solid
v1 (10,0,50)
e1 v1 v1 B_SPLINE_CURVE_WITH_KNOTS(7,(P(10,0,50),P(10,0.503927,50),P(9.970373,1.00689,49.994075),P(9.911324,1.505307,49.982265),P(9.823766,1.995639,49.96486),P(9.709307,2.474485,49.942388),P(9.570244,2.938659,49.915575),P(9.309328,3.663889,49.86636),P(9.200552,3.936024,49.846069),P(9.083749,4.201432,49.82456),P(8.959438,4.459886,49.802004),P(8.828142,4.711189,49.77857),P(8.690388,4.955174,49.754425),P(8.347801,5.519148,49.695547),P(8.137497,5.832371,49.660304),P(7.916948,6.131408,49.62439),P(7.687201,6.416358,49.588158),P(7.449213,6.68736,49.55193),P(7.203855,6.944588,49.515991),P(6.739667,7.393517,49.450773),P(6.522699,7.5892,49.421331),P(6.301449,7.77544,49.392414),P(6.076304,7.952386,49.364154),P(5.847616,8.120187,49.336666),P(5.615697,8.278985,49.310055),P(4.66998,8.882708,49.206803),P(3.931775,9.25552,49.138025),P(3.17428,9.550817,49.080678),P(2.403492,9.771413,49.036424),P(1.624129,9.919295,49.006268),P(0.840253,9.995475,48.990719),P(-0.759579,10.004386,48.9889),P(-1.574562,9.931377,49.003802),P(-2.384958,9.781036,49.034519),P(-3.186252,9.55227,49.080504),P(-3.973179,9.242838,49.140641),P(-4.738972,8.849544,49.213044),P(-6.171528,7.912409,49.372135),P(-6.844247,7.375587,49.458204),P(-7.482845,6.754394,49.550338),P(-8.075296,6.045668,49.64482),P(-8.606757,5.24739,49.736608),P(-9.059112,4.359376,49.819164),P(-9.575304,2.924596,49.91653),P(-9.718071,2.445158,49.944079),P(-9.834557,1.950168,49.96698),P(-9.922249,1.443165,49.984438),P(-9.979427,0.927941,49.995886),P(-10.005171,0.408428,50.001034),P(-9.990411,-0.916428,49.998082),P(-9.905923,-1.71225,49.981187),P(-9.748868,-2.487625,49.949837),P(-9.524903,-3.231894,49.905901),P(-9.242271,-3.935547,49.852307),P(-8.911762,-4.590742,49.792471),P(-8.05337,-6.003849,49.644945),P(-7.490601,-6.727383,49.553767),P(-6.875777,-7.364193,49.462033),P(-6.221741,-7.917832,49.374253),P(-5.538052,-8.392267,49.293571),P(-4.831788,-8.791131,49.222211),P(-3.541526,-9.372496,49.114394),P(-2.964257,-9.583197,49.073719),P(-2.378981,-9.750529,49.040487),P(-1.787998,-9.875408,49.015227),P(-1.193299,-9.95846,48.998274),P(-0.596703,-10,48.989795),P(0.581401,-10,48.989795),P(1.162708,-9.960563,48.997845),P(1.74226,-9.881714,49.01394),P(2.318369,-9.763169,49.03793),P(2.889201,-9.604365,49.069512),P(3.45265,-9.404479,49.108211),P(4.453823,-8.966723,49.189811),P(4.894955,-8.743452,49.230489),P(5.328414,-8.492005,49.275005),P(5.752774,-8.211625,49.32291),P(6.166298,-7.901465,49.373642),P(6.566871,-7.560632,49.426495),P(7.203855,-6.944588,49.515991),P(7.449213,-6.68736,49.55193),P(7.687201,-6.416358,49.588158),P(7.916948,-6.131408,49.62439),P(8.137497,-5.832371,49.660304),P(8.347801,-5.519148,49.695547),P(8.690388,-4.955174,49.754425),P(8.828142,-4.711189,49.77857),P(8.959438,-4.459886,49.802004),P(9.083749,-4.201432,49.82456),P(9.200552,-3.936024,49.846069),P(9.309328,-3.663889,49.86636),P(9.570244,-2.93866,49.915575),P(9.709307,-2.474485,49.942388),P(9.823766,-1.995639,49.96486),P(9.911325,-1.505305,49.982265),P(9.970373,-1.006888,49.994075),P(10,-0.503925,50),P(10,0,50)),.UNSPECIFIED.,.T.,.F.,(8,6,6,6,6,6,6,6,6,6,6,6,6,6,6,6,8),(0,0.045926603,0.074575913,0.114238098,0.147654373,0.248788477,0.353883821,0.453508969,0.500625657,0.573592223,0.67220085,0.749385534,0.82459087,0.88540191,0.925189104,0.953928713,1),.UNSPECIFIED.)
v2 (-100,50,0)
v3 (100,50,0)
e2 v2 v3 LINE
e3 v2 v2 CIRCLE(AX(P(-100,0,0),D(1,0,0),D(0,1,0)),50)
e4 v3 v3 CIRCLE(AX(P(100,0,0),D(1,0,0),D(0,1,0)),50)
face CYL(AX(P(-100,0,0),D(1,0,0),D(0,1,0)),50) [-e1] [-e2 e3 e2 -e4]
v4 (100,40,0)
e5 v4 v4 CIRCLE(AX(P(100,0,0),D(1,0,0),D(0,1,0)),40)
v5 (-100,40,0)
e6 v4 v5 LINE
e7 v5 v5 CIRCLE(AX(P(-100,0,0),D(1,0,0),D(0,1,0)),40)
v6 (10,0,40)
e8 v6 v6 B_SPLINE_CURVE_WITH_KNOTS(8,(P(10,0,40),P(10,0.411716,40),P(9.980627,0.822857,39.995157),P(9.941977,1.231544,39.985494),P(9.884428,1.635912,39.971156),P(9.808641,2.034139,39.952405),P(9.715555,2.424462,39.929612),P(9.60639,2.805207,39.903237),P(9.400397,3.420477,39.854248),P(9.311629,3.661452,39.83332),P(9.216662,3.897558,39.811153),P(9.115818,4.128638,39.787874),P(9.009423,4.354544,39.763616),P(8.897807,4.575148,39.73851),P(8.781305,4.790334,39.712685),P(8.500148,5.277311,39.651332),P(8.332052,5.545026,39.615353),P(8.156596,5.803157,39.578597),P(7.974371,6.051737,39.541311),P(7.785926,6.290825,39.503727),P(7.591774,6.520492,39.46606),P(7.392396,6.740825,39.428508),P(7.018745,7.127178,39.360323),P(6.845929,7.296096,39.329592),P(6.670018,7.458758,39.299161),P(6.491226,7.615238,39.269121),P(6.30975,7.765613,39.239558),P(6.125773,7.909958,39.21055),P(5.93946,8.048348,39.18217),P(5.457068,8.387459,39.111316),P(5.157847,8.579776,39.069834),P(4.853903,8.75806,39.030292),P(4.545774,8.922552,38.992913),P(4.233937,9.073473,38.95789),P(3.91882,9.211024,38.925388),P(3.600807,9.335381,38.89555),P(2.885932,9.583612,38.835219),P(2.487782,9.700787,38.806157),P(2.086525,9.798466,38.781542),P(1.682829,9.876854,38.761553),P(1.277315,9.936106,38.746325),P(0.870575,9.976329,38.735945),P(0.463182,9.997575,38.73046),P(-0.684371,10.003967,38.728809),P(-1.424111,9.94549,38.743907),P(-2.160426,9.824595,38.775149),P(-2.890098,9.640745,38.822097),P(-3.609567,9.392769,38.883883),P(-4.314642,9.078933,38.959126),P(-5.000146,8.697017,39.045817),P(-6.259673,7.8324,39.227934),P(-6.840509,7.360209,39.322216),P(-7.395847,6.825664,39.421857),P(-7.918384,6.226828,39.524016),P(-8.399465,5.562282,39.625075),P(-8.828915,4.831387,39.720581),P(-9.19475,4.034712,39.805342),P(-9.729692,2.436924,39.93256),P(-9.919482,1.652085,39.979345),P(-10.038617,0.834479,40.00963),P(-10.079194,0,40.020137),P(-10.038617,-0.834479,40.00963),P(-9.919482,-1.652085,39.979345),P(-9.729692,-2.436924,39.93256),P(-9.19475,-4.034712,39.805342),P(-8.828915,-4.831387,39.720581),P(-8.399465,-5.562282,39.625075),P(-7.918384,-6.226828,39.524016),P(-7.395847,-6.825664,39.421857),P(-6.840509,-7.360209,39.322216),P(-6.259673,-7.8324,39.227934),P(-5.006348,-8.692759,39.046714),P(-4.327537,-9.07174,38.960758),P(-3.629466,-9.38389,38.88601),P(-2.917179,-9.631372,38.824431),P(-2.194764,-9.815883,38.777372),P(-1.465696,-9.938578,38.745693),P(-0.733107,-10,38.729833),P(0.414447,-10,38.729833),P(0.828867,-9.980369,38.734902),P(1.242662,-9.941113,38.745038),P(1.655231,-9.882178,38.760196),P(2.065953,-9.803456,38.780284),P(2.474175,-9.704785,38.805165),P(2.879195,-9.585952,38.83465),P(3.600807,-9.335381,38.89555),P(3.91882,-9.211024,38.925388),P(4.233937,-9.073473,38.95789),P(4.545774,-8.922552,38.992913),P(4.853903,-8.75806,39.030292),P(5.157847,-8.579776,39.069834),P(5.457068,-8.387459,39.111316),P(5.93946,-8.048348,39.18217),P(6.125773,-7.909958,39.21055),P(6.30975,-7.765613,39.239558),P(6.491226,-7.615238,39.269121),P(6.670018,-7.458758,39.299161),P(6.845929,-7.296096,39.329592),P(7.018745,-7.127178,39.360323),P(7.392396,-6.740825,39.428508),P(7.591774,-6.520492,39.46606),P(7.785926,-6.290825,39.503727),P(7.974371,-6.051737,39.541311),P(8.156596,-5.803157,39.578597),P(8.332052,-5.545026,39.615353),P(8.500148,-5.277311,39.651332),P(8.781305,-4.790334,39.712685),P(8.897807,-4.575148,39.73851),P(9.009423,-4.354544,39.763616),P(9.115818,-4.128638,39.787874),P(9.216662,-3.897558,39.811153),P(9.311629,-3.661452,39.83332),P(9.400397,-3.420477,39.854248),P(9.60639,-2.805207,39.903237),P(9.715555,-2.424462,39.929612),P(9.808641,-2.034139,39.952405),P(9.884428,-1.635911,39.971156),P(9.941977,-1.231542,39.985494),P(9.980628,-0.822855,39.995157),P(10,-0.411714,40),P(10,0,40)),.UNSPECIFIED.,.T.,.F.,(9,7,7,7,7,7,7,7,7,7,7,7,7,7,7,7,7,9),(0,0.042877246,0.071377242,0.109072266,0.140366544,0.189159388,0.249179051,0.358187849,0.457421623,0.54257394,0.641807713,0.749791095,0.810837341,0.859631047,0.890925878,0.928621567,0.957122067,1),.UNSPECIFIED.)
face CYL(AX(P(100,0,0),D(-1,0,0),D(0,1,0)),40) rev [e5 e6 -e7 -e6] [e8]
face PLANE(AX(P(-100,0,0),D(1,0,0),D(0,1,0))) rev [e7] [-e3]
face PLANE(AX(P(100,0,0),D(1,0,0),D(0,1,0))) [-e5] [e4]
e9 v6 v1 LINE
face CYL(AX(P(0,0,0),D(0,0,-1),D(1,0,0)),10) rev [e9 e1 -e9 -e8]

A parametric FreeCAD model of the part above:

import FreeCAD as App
import Part
import Sketcher

V = App.Vector
Q = App.Units.Quantity

doc = App.newDocument("Part")
params = doc.addObject("Spreadsheet::Sheet", "Params")
for row, (alias, value) in enumerate([
    ("sketch1_width", "200 mm"),
    ("sketch1_height", "10 mm"),
    ("revolution_angle", "360 deg"),
    ("sketch2_diameter", "20 mm"),
], start=1):
    params.set(f"A{row}", alias)
    params.set(f"B{row}", "=" + value)
    params.setAlias(f"B{row}", alias)

body = doc.addObject("PartDesign::Body", "Body")

# Sketch on XY plane
sketch1 = doc.addObject("Sketcher::SketchObject", "Sketch")
body.addObject(sketch1)
sketch1.AttachmentSupport = (doc.XY_Plane, [""])
sketch1.MapMode = "FlatFace"
sketch1.addGeometry([
    Part.LineSegment(V(100, 50, 0), V(-100, 50, 0)),
    Part.LineSegment(V(-100, 50, 0), V(-100, 40, 0)),
    Part.LineSegment(V(-100, 40, 0), V(100, 40, 0)),
    Part.LineSegment(V(100, 40, 0), V(100, 50, 0)),
], False)
sketch1.addConstraint([
    Sketcher.Constraint("Coincident", 0, 2, 1, 1),
    Sketcher.Constraint("Coincident", 1, 2, 2, 1),
    Sketcher.Constraint("Coincident", 2, 2, 3, 1),
    Sketcher.Constraint("Coincident", 3, 2, 0, 1),
    Sketcher.Constraint("Horizontal", 0),
    Sketcher.Constraint("Vertical", 1),
    Sketcher.Constraint("Horizontal", 2),
    Sketcher.Constraint("Vertical", 3),
    Sketcher.Constraint("DistanceX", 0, 2, 0, 1, Q("200 mm")),
    Sketcher.Constraint("DistanceY", 1, 2, 1, 1, Q("10 mm")),
    Sketcher.Constraint("DistanceX", 0, 2, -1, 1, Q("100 mm")),
    Sketcher.Constraint("DistanceY", -1, 1, 0, 2, Q("50 mm")),
])
sketch1.setExpression("Constraints[8]", "Params.sketch1_width")
sketch1.setExpression("Constraints[9]", "Params.sketch1_height")
revolution = doc.addObject("PartDesign::Revolution", "Revolution")
body.addObject(revolution)
revolution.Profile = sketch1
revolution.ReferenceAxis = (sketch1, ["H_Axis"])
revolution.setExpression("Angle", "Params.revolution_angle")

# Sketch on XY plane
sketch2 = doc.addObject("Sketcher::SketchObject", "Sketch001")
body.addObject(sketch2)
sketch2.AttachmentSupport = (doc.XY_Plane, [""])
sketch2.MapMode = "FlatFace"
sketch2.addGeometry(Part.Circle(V(0, 0, 0), V(0, 0, 1), 10), False)
sketch2.addConstraint([
    Sketcher.Constraint("Coincident", 0, 3, -1, 1),
    Sketcher.Constraint("Diameter", 0, Q("20 mm")),
])
sketch2.setExpression("Constraints[1]", "Params.sketch2_diameter")
pocket1 = doc.addObject("PartDesign::Pocket", "Pocket")
body.addObject(pocket1)
pocket1.Profile = sketch2
pocket1.Type = "ThroughAll"
pocket1.Reversed = True

doc.recompute()
